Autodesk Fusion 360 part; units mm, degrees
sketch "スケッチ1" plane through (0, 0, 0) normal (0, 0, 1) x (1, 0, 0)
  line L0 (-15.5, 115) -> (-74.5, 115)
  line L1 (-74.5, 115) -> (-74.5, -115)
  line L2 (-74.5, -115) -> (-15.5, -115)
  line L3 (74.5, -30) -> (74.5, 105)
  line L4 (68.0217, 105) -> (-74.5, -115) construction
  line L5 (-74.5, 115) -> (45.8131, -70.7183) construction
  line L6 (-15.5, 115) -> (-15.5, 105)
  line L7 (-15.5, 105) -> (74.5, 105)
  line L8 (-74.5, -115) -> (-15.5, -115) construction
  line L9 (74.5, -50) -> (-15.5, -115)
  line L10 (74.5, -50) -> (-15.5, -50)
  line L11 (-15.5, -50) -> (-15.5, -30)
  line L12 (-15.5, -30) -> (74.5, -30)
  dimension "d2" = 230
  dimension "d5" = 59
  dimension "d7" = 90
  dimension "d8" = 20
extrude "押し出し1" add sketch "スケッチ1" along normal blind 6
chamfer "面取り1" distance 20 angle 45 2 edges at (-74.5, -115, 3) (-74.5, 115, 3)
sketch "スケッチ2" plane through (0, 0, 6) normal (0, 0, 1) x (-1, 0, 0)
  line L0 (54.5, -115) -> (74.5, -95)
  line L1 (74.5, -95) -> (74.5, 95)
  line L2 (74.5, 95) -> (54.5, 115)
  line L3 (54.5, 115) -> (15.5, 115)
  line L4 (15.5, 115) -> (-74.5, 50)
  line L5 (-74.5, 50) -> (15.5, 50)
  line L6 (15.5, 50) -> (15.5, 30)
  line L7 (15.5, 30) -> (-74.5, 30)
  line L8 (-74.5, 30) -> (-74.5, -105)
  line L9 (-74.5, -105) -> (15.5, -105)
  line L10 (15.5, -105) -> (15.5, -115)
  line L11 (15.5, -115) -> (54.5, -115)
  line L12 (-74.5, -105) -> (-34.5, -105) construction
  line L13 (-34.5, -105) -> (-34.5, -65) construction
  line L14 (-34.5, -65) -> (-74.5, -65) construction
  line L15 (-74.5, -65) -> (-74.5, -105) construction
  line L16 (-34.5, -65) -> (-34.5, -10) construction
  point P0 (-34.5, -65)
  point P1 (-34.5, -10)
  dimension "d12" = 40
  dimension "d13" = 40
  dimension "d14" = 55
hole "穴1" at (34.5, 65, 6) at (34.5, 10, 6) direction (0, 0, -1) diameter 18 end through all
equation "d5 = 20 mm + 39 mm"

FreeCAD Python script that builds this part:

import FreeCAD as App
import Part
import Sketcher
Q = App.Units.Quantity


def edges_at(feature, points):
    """Names of the edges that pass closest to the given points."""
    edges = feature.Shape.Edges
    near = lambda p: min(range(len(edges)), key=lambda i: edges[i].distToShape(Part.Vertex(*p))[0])
    return sorted({f"Edge{near(p) + 1}" for p in points})

doc = App.newDocument("Part")
params = doc.addObject("Spreadsheet::Sheet", "Params")
for row, (alias, value) in enumerate([
    ("sketch1_width", "59 mm"),
    ("sketch1_width2", "90 mm"),
    ("sketch1_height", "230 mm"),
    ("sketch1_height2", "20 mm"),
    ("sketch1_height3", "10 mm"),
    ("pad1_length", "6 mm"),
    ("chamfer_size", "20 mm"),
    ("sketch2_diameter", "18 mm"),
    ("hole_diameter", "18 mm"),
], start=1):
    params.set(f"A{row}", alias)
    params.set(f"B{row}", "=" + value)
    params.setAlias(f"B{row}", alias)

body = doc.addObject("PartDesign::Body", "Body")

# Sketch on XY plane
sketch1 = body.newObject("Sketcher::SketchObject", "Sketch")
sketch1.AttachmentSupport = (doc.getObject("XY_Plane"), [""])
sketch1.MapMode = "FlatFace"
sketch1.addGeometry([
    Part.LineSegment(App.Vector(-15.5, 105, 0), App.Vector(-15.5, 115, 0)),  # 0
    Part.LineSegment(App.Vector(-15.5, 115, 0), App.Vector(-74.5, 115, 0)),  # 1
    Part.LineSegment(App.Vector(-74.5, 115, 0), App.Vector(-74.5, -115, 0)),  # 2
    Part.LineSegment(App.Vector(-74.5, -115, 0), App.Vector(-15.5, -115, 0)),  # 3
    Part.LineSegment(App.Vector(-15.5, -115, 0), App.Vector(74.5, -50, 0)),  # 4
    Part.LineSegment(App.Vector(74.5, -50, 0), App.Vector(-15.5, -50, 0)),  # 5
    Part.LineSegment(App.Vector(-15.5, -50, 0), App.Vector(-15.5, -30, 0)),  # 6
    Part.LineSegment(App.Vector(-15.5, -30, 0), App.Vector(74.5, -30, 0)),  # 7
    Part.LineSegment(App.Vector(74.5, -30, 0), App.Vector(74.5, 105, 0)),  # 8
    Part.LineSegment(App.Vector(74.5, 105, 0), App.Vector(-15.5, 105, 0)),  # 9
], False)
sketch1.addConstraint([
    Sketcher.Constraint("Coincident", 0, 2, 1, 1),
    Sketcher.Constraint("Coincident", 1, 2, 2, 1),
    Sketcher.Constraint("Coincident", 2, 2, 3, 1),
    Sketcher.Constraint("Coincident", 3, 2, 4, 1),
    Sketcher.Constraint("Coincident", 4, 2, 5, 1),
    Sketcher.Constraint("Coincident", 5, 2, 6, 1),
    Sketcher.Constraint("Coincident", 6, 2, 7, 1),
    Sketcher.Constraint("Coincident", 7, 2, 8, 1),
    Sketcher.Constraint("Coincident", 8, 2, 9, 1),
    Sketcher.Constraint("Coincident", 9, 2, 0, 1),
    Sketcher.Constraint("Vertical", 0),
    Sketcher.Constraint("Horizontal", 1),
    Sketcher.Constraint("Vertical", 2),
    Sketcher.Constraint("Horizontal", 3),
    Sketcher.Constraint("Horizontal", 5),
    Sketcher.Constraint("Vertical", 6),
    Sketcher.Constraint("Horizontal", 7),
    Sketcher.Constraint("Vertical", 8),
    Sketcher.Constraint("Horizontal", 9),
    Sketcher.Constraint("Symmetric", 0, 2, 3, 2, -1),
    Sketcher.Constraint("Vertical", 3, 2, 5, 2),
    Sketcher.Constraint("Vertical", 4, 2, 7, 2),
    Sketcher.Constraint("DistanceX", 1, 2, 1, 1, Q("59 mm")),
    Sketcher.Constraint("DistanceX", 5, 2, 5, 1, Q("90 mm")),
    Sketcher.Constraint("DistanceY", 2, 2, 2, 1, Q("230 mm")),
    Sketcher.Constraint("DistanceY", 6, 1, 6, 2, Q("20 mm")),
    Sketcher.Constraint("DistanceY", 0, 1, 0, 2, Q("10 mm")),
    Sketcher.Constraint("DistanceY", 8, 1, 8, 2, Q("135 mm")),
    Sketcher.Constraint("DistanceX", 0, 2, -1, 1, Q("15.5 mm")),
])
sketch1.setExpression("Constraints[22]", "Params.sketch1_width")
sketch1.setExpression("Constraints[23]", "Params.sketch1_width2")
sketch1.setExpression("Constraints[24]", "Params.sketch1_height")
sketch1.setExpression("Constraints[25]", "Params.sketch1_height2")
sketch1.setExpression("Constraints[26]", "Params.sketch1_height3")
pad1 = body.newObject("PartDesign::Pad", "Pad")
pad1.Profile = sketch1
pad1.setExpression("Length", "Params.pad1_length")
doc.recompute()

chamfer = body.newObject("PartDesign::Chamfer", "Chamfer")
chamfer.Base = (pad1, edges_at(pad1, [(-74.5, -115, 3), (-74.5, 115, 3)]))
chamfer.setExpression("Size", "Params.chamfer_size")

# Sketch on XY plane
sketch2 = body.newObject("Sketcher::SketchObject", "Sketch001")
sketch2.AttachmentSupport = (doc.getObject("XY_Plane"), [""])
sketch2.MapMode = "FlatFace"
sketch2.AttachmentOffset = App.Placement(App.Vector(0, 0, 6), App.Rotation())
sketch2.addGeometry([
    Part.Circle(App.Vector(34.5, 65, 0), App.Vector(0, 0, 1), 9),
    Part.Circle(App.Vector(34.5, 10, 0), App.Vector(0, 0, 1), 9),
], False)
sketch2.addConstraint([
    Sketcher.Constraint("Equal", 0, 1),
    Sketcher.Constraint("Vertical", 0, 3, 1, 3),
    Sketcher.Constraint("Diameter", 0, Q("18 mm")),
    Sketcher.Constraint("DistanceY", -1, 1, 0, 3, Q("65 mm")),
    Sketcher.Constraint("DistanceY", -1, 1, 1, 3, Q("10 mm")),
    Sketcher.Constraint("DistanceX", -1, 1, 0, 3, Q("34.5 mm")),
])
sketch2.setExpression("Constraints[2]", "Params.sketch2_diameter")
doc.recompute()
hole = body.newObject("PartDesign::Hole", "Hole")
hole.Profile = sketch2
hole.ThreadType = "None"
hole.setExpression("Diameter", "Params.hole_diameter")
hole.DepthType = "ThroughAll"

doc.recompute()
